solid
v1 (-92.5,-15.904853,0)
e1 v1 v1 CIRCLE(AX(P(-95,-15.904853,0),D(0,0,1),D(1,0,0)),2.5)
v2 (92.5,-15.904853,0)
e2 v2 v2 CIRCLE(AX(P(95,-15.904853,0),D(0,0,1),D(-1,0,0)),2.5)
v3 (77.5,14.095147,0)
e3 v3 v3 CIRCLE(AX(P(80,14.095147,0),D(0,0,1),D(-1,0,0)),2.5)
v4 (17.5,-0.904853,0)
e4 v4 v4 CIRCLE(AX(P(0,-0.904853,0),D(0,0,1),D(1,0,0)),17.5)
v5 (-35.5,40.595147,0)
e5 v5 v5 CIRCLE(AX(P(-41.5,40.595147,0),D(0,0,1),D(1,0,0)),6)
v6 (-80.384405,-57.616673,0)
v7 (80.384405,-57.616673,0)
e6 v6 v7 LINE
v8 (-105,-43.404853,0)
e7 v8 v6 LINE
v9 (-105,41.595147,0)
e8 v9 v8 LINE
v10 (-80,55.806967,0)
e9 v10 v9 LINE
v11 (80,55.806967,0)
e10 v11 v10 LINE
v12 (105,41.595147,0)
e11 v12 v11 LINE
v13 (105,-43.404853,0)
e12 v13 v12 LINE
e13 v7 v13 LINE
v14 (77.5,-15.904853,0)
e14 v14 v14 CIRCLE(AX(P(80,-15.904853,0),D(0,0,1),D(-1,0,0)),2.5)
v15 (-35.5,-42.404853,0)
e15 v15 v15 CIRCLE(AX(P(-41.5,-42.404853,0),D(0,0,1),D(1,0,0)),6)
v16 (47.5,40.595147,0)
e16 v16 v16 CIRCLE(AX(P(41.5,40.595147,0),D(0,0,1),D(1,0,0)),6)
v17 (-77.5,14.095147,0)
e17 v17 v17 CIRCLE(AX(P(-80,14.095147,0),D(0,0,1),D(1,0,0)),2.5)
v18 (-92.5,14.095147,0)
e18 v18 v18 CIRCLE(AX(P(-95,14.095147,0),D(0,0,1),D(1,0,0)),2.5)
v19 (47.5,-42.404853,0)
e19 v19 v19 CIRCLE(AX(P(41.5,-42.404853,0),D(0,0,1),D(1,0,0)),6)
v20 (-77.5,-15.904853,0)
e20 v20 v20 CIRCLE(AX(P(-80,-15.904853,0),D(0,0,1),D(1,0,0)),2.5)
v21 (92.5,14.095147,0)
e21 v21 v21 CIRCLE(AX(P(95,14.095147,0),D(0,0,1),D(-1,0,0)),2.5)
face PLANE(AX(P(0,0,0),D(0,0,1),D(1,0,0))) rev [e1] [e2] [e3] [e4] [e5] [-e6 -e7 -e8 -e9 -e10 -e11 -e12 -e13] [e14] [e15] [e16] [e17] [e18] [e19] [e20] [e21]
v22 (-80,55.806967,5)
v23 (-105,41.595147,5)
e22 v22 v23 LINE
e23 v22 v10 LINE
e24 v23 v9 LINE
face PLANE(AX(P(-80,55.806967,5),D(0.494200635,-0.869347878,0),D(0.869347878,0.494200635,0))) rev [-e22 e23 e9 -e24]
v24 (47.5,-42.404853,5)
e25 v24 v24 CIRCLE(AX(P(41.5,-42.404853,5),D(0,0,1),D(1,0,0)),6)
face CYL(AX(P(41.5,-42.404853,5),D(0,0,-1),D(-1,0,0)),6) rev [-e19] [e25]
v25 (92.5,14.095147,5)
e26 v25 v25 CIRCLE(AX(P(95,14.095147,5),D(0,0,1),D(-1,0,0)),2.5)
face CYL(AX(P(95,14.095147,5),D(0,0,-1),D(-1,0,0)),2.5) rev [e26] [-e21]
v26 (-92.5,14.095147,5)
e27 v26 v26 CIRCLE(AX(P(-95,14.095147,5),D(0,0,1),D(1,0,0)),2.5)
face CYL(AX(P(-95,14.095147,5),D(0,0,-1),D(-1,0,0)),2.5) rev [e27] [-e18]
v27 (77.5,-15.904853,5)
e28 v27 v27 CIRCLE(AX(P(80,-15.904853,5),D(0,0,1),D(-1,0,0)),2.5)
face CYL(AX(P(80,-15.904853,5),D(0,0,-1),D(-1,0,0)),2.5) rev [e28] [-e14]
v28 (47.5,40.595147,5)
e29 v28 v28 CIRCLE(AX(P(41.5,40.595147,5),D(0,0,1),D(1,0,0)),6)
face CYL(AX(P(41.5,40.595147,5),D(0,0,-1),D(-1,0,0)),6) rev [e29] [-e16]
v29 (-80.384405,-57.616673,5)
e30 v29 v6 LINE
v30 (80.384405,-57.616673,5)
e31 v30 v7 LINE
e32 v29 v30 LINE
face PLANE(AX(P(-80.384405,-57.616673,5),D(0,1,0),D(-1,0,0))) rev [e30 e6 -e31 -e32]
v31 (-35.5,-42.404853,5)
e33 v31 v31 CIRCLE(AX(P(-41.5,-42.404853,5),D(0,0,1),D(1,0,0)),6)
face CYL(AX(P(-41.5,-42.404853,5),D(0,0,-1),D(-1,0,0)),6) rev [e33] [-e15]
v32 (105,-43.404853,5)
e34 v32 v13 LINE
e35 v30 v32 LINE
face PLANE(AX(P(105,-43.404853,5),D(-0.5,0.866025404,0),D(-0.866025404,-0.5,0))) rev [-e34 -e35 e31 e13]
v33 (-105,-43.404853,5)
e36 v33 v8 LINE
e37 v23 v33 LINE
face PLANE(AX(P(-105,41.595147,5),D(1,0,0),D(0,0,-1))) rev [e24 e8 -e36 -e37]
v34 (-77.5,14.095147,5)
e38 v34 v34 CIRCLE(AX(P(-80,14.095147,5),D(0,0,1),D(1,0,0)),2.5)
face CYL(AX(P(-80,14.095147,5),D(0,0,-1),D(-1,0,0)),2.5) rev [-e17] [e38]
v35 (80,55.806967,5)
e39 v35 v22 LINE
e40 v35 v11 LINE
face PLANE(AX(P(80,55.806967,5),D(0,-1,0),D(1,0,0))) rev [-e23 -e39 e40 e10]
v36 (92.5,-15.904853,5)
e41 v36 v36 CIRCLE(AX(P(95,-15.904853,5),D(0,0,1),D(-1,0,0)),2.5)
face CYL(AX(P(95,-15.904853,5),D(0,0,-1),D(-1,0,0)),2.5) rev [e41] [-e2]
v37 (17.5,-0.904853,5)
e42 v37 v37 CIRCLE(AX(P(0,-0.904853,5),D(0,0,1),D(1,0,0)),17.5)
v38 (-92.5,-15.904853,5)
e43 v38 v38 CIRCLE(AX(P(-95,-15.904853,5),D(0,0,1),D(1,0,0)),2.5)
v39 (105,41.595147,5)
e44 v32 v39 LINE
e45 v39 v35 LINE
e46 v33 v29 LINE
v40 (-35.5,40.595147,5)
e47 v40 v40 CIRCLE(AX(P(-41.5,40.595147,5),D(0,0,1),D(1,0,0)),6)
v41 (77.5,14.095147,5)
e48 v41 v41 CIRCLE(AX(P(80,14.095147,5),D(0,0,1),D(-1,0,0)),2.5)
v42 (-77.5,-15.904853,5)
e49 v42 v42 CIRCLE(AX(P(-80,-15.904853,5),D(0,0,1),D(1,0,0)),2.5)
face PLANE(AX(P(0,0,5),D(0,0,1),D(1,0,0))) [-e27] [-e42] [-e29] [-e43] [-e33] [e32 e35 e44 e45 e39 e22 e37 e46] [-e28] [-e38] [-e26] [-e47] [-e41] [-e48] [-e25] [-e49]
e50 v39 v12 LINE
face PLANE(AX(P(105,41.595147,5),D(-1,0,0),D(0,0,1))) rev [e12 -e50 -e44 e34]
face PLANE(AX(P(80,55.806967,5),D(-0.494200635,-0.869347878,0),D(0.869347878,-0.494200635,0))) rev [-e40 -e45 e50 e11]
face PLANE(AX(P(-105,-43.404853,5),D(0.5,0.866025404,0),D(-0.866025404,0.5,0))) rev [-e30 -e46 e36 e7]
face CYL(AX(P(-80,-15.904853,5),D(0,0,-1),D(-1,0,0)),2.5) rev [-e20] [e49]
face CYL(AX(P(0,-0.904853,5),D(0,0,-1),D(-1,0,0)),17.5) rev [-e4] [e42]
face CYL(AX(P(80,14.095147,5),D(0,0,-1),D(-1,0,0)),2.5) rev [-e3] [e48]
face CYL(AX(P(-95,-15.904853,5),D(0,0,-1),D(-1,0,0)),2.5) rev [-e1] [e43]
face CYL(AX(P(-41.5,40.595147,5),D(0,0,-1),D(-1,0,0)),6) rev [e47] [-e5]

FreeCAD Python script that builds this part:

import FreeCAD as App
import Part
import Sketcher
from FreeCAD import Vector
Q = App.Units.Quantity

doc = App.newDocument("Part")
params = doc.addObject("Spreadsheet::Sheet", "Params")
for row, (alias, value) in enumerate([
    ("sketch1_diameter", "12 mm"),
    ("sketch1_diameter2", "5 mm"),
    ("sketch1_diameter3", "35 mm"),
    ("sketch1_width", "160 mm"),
    ("sketch1_height", "85 mm"),
    ("pad1_length", "5 mm"),
], start=1):
    params.set(f"A{row}", alias)
    params.set(f"B{row}", "=" + value)
    params.setAlias(f"B{row}", alias)

body = doc.addObject("PartDesign::Body", "Body")

# Sketch on XY plane
sketch1 = body.newObject("Sketcher::SketchObject", "Sketch")
sketch1.AttachmentSupport = (doc.getObject("XY_Plane"), [""])
sketch1.MapMode = "FlatFace"
sketch1.addGeometry([
    Part.LineSegment(Vector(80, 55.8, 0), Vector(-80, 55.8, 0)),  # 0
    Part.LineSegment(Vector(-80, 55.8, 0), Vector(-105, 41.6, 0)),  # 1
    Part.LineSegment(Vector(-105, 41.6, 0), Vector(-105, -43.4, 0)),  # 2
    Part.LineSegment(Vector(-105, -43.4, 0), Vector(-80.4, -57.6, 0)),  # 3
    Part.LineSegment(Vector(-80.4, -57.6, 0), Vector(80.4, -57.6, 0)),  # 4
    Part.LineSegment(Vector(80.4, -57.6, 0), Vector(105, -43.4, 0)),  # 5
    Part.LineSegment(Vector(105, -43.4, 0), Vector(105, 41.6, 0)),  # 6
    Part.LineSegment(Vector(105, 41.6, 0), Vector(80, 55.8, 0)),  # 7
    Part.Circle(Vector(-41.5, -42.4, 0), Vector(0, 0, 1), 6),  # 8
    Part.Circle(Vector(-95, -15.9, 0), Vector(0, 0, 1), 2.5),  # 9
    Part.Circle(Vector(-80, -15.9, 0), Vector(0, 0, 1), 2.5),  # 10
    Part.Circle(Vector(41.5, -42.4, 0), Vector(0, 0, 1), 6),  # 11
    Part.Circle(Vector(80, -15.9, 0), Vector(0, 0, 1), 2.5),  # 12
    Part.Circle(Vector(95, -15.9, 0), Vector(0, 0, 1), 2.5),  # 13
    Part.Circle(Vector(-95, 14.1, 0), Vector(0, 0, 1), 2.5),  # 14
    Part.Circle(Vector(-80, 14.1, 0), Vector(0, 0, 1), 2.5),  # 15
    Part.Circle(Vector(-41.5, 40.6, 0), Vector(0, 0, 1), 6),  # 16
    Part.Circle(Vector(0, -0.9, 0), Vector(0, 0, 1), 17.5),  # 17
    Part.Circle(Vector(80, 14.1, 0), Vector(0, 0, 1), 2.5),  # 18
    Part.Circle(Vector(95, 14.1, 0), Vector(0, 0, 1), 2.5),  # 19
    Part.Circle(Vector(41.5, 40.6, 0), Vector(0, 0, 1), 6),  # 20
], False)
sketch1.addConstraint([
    Sketcher.Constraint("Coincident", 0, 2, 1, 1),
    Sketcher.Constraint("Coincident", 1, 2, 2, 1),
    Sketcher.Constraint("Coincident", 2, 2, 3, 1),
    Sketcher.Constraint("Coincident", 3, 2, 4, 1),
    Sketcher.Constraint("Coincident", 4, 2, 5, 1),
    Sketcher.Constraint("Coincident", 5, 2, 6, 1),
    Sketcher.Constraint("Coincident", 6, 2, 7, 1),
    Sketcher.Constraint("Coincident", 7, 2, 0, 1),
    Sketcher.Constraint("Horizontal", 0),
    Sketcher.Constraint("Vertical", 2),
    Sketcher.Constraint("Horizontal", 4),
    Sketcher.Constraint("Vertical", 6),
    Sketcher.Constraint("Equal", 9, 10),
    Sketcher.Constraint("Equal", 8, 11),
    Sketcher.Constraint("Equal", 10, 12),
    Sketcher.Constraint("Equal", 12, 13),
    Sketcher.Constraint("Equal", 13, 14),
    Sketcher.Constraint("Equal", 14, 15),
    Sketcher.Constraint("Equal", 11, 16),
    Sketcher.Constraint("Equal", 15, 18),
    Sketcher.Constraint("Equal", 18, 19),
    Sketcher.Constraint("Equal", 16, 20),
    Sketcher.Constraint("Symmetric", 8, 3, 11, 3, -2),
    Sketcher.Constraint("Symmetric", 10, 3, 12, 3, -2),
    Sketcher.Constraint("Symmetric", 9, 3, 13, 3, -2),
    Sketcher.Constraint("Symmetric", 15, 3, 18, 3, -2),
    Sketcher.Constraint("Symmetric", 14, 3, 19, 3, -2),
    Sketcher.Constraint("Symmetric", 16, 3, 20, 3, -2),
    Sketcher.Constraint("Symmetric", 2, 2, 5, 2, -2),
    Sketcher.Constraint("PointOnObject", 17, 3, -2),
    Sketcher.Constraint("Horizontal", 9, 3, 10, 3),
    Sketcher.Constraint("Horizontal", 14, 3, 15, 3),
    Sketcher.Constraint("Horizontal", 1, 2, 6, 2),
    Sketcher.Constraint("Vertical", 9, 3, 14, 3),
    Sketcher.Constraint("Vertical", 10, 3, 15, 3),
    Sketcher.Constraint("Vertical", 8, 3, 16, 3),
    Sketcher.Constraint("Vertical", 15, 3, 0, 2),
    Sketcher.Constraint("Vertical", 18, 3, 7, 2),
    Sketcher.Constraint("Equal", 3, 5),
    Sketcher.Constraint("Diameter", 8, Q("12 mm")),
    Sketcher.Constraint("Diameter", 9, Q("5 mm")),
    Sketcher.Constraint("Diameter", 17, Q("35 mm")),
    Sketcher.Constraint("DistanceX", 0, 2, 0, 1, Q("160 mm")),
    Sketcher.Constraint("DistanceY", 2, 2, 2, 1, Q("85 mm")),
    Sketcher.Constraint("Angle", 3, Q("-30 deg")),
    Sketcher.Constraint("DistanceX", 9, 3, -1, 1, Q("95 mm")),
    Sketcher.Constraint("DistanceX", 1, 2, -1, 1, Q("105 mm")),
    Sketcher.Constraint("DistanceX", 8, 3, 11, 3, Q("83 mm")),
    Sketcher.Constraint("DistanceY", 9, 3, 14, 3, Q("30 mm")),
    Sketcher.Constraint("DistanceY", 8, 3, 16, 3, Q("83 mm")),
    Sketcher.Constraint("DistanceY", 10, 3, 17, 3, Q("15 mm")),
    Sketcher.Constraint("DistanceY", 2, 2, 8, 3, Q("1 mm")),
    Sketcher.Constraint("DistanceY", 8, 3, 9, 3, Q("26.5 mm")),
    Sketcher.Constraint("DistanceX", 4, 1, 4, 2, Q("160.76881 mm")),
    Sketcher.Constraint("DistanceY", 16, 3, 0, 2, Q("15.21182 mm")),
    Sketcher.Constraint("DistanceY", 8, 3, -1, 1, Q("42.404853 mm")),
])
sketch1.setExpression("Constraints[39]", "Params.sketch1_diameter")
sketch1.setExpression("Constraints[40]", "Params.sketch1_diameter2")
sketch1.setExpression("Constraints[41]", "Params.sketch1_diameter3")
sketch1.setExpression("Constraints[42]", "Params.sketch1_width")
sketch1.setExpression("Constraints[43]", "Params.sketch1_height")
pad1 = body.newObject("PartDesign::Pad", "Pad")
pad1.Profile = sketch1
pad1.setExpression("Length", "Params.pad1_length")

doc.recompute()
